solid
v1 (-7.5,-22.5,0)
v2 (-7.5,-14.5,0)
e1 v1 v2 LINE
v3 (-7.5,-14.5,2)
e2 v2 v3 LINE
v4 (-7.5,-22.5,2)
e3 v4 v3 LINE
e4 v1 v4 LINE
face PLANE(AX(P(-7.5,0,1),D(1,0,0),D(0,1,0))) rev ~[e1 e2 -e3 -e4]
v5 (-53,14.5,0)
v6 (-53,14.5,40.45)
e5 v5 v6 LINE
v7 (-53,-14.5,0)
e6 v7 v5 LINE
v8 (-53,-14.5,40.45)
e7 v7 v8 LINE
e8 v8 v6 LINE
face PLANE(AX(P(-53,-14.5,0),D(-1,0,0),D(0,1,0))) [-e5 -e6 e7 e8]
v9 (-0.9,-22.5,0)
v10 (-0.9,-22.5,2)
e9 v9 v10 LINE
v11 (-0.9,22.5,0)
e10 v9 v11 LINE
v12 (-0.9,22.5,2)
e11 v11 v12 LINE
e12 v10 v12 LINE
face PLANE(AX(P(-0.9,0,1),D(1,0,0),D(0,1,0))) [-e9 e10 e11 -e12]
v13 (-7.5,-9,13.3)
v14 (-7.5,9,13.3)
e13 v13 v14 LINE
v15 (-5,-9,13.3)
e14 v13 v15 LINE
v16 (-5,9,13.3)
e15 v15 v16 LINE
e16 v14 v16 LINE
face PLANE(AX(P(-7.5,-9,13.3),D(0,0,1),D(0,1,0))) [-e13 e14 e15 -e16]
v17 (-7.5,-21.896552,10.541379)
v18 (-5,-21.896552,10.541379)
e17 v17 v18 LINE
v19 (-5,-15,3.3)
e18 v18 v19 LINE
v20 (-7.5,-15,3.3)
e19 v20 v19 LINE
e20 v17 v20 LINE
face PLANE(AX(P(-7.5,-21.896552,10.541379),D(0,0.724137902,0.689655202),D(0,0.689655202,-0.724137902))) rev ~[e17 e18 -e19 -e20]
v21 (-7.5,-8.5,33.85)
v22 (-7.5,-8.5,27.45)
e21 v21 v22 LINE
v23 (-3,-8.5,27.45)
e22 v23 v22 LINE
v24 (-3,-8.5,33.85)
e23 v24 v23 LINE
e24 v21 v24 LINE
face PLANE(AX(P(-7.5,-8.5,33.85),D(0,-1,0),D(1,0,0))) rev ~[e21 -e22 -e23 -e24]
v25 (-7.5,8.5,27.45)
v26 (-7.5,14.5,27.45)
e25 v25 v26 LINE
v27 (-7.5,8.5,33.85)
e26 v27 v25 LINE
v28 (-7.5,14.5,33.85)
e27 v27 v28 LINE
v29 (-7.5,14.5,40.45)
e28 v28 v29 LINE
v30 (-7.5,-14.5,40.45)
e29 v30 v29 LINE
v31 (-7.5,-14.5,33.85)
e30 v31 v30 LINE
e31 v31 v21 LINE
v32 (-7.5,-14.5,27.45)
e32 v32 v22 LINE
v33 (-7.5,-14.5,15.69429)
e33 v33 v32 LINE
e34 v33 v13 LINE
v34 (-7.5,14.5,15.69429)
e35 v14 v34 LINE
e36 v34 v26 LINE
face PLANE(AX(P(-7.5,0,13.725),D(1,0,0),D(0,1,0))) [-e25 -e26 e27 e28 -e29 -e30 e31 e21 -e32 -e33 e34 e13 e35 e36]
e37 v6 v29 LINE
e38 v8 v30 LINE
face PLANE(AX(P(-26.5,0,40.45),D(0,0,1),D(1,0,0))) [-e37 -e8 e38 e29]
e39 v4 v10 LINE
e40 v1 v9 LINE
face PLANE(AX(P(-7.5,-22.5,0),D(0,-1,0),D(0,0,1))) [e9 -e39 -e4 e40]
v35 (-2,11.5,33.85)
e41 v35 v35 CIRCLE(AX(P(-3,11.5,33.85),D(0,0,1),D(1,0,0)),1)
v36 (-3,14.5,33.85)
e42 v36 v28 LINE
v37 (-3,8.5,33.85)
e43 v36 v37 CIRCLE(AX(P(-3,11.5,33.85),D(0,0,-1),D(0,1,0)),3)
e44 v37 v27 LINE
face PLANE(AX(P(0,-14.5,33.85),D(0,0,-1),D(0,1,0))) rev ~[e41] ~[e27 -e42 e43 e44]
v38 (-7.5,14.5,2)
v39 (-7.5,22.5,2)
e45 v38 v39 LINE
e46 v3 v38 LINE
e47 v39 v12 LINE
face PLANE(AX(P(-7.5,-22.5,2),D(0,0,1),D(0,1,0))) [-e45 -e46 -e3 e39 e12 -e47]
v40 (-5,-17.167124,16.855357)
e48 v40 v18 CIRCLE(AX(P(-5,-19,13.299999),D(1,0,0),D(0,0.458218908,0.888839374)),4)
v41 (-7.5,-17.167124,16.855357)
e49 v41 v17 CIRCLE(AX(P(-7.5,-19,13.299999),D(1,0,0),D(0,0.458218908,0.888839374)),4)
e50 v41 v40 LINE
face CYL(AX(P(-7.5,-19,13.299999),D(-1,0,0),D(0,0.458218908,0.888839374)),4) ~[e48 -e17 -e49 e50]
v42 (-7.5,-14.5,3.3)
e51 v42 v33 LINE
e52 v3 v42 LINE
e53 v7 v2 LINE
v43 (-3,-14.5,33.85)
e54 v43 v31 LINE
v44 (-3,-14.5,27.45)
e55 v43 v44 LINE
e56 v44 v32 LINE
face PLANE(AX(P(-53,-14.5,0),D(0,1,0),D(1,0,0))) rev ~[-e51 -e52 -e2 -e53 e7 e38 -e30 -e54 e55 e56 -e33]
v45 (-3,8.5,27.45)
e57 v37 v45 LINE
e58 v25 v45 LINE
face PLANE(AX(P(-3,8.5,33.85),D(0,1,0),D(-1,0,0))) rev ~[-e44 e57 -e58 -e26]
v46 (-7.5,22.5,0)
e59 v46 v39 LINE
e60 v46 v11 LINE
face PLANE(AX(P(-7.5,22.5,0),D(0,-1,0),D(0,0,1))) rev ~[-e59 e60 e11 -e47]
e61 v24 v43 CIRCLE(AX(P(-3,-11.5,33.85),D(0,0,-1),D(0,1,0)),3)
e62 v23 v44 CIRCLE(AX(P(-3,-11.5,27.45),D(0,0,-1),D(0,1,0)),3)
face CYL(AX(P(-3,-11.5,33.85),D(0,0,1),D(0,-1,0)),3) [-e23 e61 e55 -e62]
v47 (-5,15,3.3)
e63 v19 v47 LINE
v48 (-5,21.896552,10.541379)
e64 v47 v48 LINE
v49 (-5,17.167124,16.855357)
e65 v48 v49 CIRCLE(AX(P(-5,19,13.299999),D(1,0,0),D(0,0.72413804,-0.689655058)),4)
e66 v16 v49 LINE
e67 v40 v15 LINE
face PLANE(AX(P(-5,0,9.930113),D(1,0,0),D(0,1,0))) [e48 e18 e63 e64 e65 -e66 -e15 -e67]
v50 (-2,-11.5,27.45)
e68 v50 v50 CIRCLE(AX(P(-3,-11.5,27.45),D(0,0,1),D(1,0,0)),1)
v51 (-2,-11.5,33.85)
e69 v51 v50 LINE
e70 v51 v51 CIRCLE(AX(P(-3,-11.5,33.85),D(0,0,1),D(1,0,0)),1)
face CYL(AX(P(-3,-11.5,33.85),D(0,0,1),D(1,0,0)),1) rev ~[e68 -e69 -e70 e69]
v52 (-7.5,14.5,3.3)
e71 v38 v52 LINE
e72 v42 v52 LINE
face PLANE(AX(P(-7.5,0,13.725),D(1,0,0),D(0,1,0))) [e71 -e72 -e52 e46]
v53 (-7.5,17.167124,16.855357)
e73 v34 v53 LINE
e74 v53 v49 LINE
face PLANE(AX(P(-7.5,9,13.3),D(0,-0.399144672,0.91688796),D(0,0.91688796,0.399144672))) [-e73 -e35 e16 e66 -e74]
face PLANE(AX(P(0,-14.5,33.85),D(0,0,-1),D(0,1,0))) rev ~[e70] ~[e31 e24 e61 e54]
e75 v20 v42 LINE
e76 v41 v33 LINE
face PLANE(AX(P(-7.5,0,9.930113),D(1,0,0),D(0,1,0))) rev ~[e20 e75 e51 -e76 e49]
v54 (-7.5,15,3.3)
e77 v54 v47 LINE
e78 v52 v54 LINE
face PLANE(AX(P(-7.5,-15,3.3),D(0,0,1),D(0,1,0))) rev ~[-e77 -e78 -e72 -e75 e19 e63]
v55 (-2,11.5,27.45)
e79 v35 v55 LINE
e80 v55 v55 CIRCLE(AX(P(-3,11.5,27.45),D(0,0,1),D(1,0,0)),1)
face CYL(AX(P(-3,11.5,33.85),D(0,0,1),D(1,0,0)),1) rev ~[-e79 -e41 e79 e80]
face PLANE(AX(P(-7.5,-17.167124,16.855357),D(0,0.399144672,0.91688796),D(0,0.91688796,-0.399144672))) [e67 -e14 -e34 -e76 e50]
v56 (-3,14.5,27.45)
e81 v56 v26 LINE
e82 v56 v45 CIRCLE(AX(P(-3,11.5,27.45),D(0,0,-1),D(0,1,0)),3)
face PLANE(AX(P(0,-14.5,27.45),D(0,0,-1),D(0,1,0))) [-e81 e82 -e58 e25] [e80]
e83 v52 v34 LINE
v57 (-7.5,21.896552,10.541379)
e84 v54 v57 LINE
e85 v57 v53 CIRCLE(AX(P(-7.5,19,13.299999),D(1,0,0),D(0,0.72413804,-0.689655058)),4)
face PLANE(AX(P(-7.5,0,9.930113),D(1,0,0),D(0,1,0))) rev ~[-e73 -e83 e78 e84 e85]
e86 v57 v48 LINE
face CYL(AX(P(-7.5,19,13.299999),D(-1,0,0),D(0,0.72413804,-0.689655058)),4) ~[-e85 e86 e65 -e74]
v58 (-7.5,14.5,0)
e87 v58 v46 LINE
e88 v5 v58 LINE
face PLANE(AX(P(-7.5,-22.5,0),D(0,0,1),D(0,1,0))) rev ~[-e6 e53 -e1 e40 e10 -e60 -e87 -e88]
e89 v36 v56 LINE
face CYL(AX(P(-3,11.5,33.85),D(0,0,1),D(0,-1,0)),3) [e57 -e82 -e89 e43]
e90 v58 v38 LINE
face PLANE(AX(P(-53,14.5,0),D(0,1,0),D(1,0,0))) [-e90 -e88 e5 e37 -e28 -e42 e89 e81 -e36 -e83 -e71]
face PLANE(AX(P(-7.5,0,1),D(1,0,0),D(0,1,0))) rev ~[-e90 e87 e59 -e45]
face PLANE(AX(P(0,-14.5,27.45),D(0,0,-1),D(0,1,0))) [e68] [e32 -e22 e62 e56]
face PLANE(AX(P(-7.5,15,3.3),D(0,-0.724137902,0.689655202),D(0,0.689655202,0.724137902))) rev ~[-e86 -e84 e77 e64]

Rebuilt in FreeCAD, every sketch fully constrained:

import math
import FreeCAD as App
import Part
import Sketcher

V = App.Vector


def add_polygon(sketch, points):
    """Adds a closed chain of lines whose ends are joined by coincident constraints."""
    first, n = sketch.GeometryCount, len(points)
    for a, b in zip(points, points[1:] + points[:1]):
        sketch.addGeometry(Part.LineSegment(App.Vector(*a, 0), App.Vector(*b, 0)), False)
    for i in range(n):
        sketch.addConstraint(Sketcher.Constraint("Coincident", first + i, 2, first + (i + 1) % n, 1))

doc = App.newDocument("Part")
body = doc.addObject("PartDesign::Body", "Body")

sketch1 = body.newObject("Sketcher::SketchObject", "Sketch")
sketch1.AttachmentSupport = (doc.getObject("XY_Plane"), [""])
sketch1.MapMode = "FlatFace"
add_polygon(sketch1, [(-53, 14), (-53, -14), (0, -14), (0, 14)])
sketch1.addConstraint(Sketcher.Constraint("Vertical", 0))
sketch1.addConstraint(Sketcher.Constraint("Horizontal", 1))
sketch1.addConstraint(Sketcher.Constraint("Vertical", 2))
sketch1.addConstraint(Sketcher.Constraint("Horizontal", 3))
sketch1.addConstraint(Sketcher.Constraint("Symmetric", 1, 2, 2, 2, -1, 1))
sketch1.addConstraint(Sketcher.Constraint("DistanceX", 1, 1, 1, 2, 53.0))
sketch1.addConstraint(Sketcher.Constraint("DistanceY", 0, 2, 0, 1, 29.0))
pad1 = body.newObject("PartDesign::Pad", "Pad")
pad1.Profile = sketch1
pad1.Length = 40.45

sketch2 = body.newObject("Sketcher::SketchObject", "Sketch001")
sketch2.AttachmentSupport = (doc.getObject("YZ_Plane"), [""])
sketch2.MapMode = "FlatFace"
add_polygon(sketch2, [(-14, 40), (-14, 34), (14, 34), (14, 40)])
add_polygon(sketch2, [(-14, 27), (-14, 0), (14, 0), (14, 27)])
sketch2.addConstraint(Sketcher.Constraint("Vertical", 0))
sketch2.addConstraint(Sketcher.Constraint("Horizontal", 1))
sketch2.addConstraint(Sketcher.Constraint("Vertical", 2))
sketch2.addConstraint(Sketcher.Constraint("Horizontal", 3))
sketch2.addConstraint(Sketcher.Constraint("Vertical", 4))
sketch2.addConstraint(Sketcher.Constraint("Horizontal", 5))
sketch2.addConstraint(Sketcher.Constraint("Vertical", 6))
sketch2.addConstraint(Sketcher.Constraint("Horizontal", 7))
sketch2.addConstraint(Sketcher.Constraint("Symmetric", 4, 2, 5, 2, -1, 1))
sketch2.addConstraint(Sketcher.Constraint("Vertical", 3, 2, 4, 2))
sketch2.addConstraint(Sketcher.Constraint("Vertical", 2, 2, 5, 2))
sketch2.addConstraint(Sketcher.Constraint("DistanceX", 1, 1, 1, 2, 29.0))
sketch2.addConstraint(Sketcher.Constraint("DistanceY", 0, 2, 0, 1, 6.6))
sketch2.addConstraint(Sketcher.Constraint("DistanceY", 6, 2, 2, 2, 13.0))
sketch2.addConstraint(Sketcher.Constraint("DistanceY", 4, 2, 4, 1, 27.45))
pocket1 = body.newObject("PartDesign::Pocket", "Pocket")
pocket1.Profile = sketch2
pocket1.Length = 7.5

sketch3 = body.newObject("Sketcher::SketchObject", "Sketch002")
sketch3.AttachmentSupport = (doc.getObject("XY_Plane"), [""])
sketch3.MapMode = "FlatFace"
sketch3.AttachmentOffset = App.Placement(V(0, 0, 33.85), App.Rotation())
sketch3.addGeometry(Part.Circle(V(-3, -11.5, 0), V(0, 0, 1), 1), False)
sketch3.addGeometry(Part.Circle(V(-3, 11.5, 0), V(0, 0, 1), 1), False)
sketch3.addGeometry(Part.LineSegment(V(-3, 8.5, 0), V(-7.5, 8.5, 0)), False)
sketch3.addGeometry(Part.LineSegment(V(-7.5, 8.5, 0), V(-7.5, -8.5, 0)), False)
sketch3.addGeometry(Part.LineSegment(V(-7.5, -8.5, 0), V(-3, -8.5, 0)), False)
sketch3.addGeometry(Part.ArcOfCircle(Part.Circle(V(-3, -11.5, 0), V(0, 0, 1), 3), math.radians(-90), math.radians(90)), False)
sketch3.addGeometry(Part.LineSegment(V(-3, -14.5, 0), V(2, -14.5, 0)), False)
sketch3.addGeometry(Part.LineSegment(V(2, -14.5, 0), V(2, 14.5, 0)), False)
sketch3.addGeometry(Part.LineSegment(V(2, 14.5, 0), V(-3, 14.5, 0)), False)
sketch3.addGeometry(Part.ArcOfCircle(Part.Circle(V(-3, 11.5, 0), V(0, 0, 1), 3), math.radians(-90), math.radians(90)), False)
sketch3.addConstraint(Sketcher.Constraint("Coincident", 2, 2, 3, 1))
sketch3.addConstraint(Sketcher.Constraint("Coincident", 3, 2, 4, 1))
sketch3.addConstraint(Sketcher.Constraint("Tangent", 4, 2, 5, 2))
sketch3.addConstraint(Sketcher.Constraint("Tangent", 5, 1, 6, 1))
sketch3.addConstraint(Sketcher.Constraint("Coincident", 6, 2, 7, 1))
sketch3.addConstraint(Sketcher.Constraint("Coincident", 7, 2, 8, 1))
sketch3.addConstraint(Sketcher.Constraint("Tangent", 8, 2, 9, 2))
sketch3.addConstraint(Sketcher.Constraint("Tangent", 9, 1, 2, 1))
sketch3.addConstraint(Sketcher.Constraint("Horizontal", 2))
sketch3.addConstraint(Sketcher.Constraint("Vertical", 3))
sketch3.addConstraint(Sketcher.Constraint("Horizontal", 4))
sketch3.addConstraint(Sketcher.Constraint("Horizontal", 6))
sketch3.addConstraint(Sketcher.Constraint("Vertical", 7))
sketch3.addConstraint(Sketcher.Constraint("Horizontal", 8))
sketch3.addConstraint(Sketcher.Constraint("Coincident", 5, 3, 0, 3))
sketch3.addConstraint(Sketcher.Constraint("Coincident", 9, 3, 1, 3))
sketch3.addConstraint(Sketcher.Constraint("Equal", 0, 1))
sketch3.addConstraint(Sketcher.Constraint("Equal", 5, 9))
sketch3.addConstraint(Sketcher.Constraint("Symmetric", 0, 3, 1, 3, -1))
sketch3.addConstraint(Sketcher.Constraint("Diameter", 0, 2.0))
sketch3.addConstraint(Sketcher.Constraint("Radius", 5, 3.0))
sketch3.addConstraint(Sketcher.Constraint("DistanceX", 6, 1, 6, 2, 5.0))
sketch3.addConstraint(Sketcher.Constraint("DistanceY", 3, 2, 3, 1, 17.0))
sketch3.addConstraint(Sketcher.Constraint("DistanceX", 2, 2, 2, 1, 4.5))
sketch3.addConstraint(Sketcher.Constraint("DistanceX", 0, 3, -1, 1, 3.0))
pocket2 = body.newObject("PartDesign::Pocket", "Pocket001")
pocket2.Profile = sketch3
pocket2.Length = 6.5

sketch4 = body.newObject("Sketcher::SketchObject", "Sketch003")
sketch4.AttachmentSupport = (doc.getObject("YZ_Plane"), [""])
sketch4.MapMode = "FlatFace"
sketch4.AttachmentOffset = App.Placement(V(0, 0, -7.5), App.Rotation())
sketch4.addGeometry(Part.LineSegment(V(-21.9, 10.5, 0), V(-15, 3.3, 0)), False)
sketch4.addGeometry(Part.LineSegment(V(-15, 3.3, 0), V(15, 3.3, 0)), False)
sketch4.addGeometry(Part.LineSegment(V(15, 3.3, 0), V(21.9, 10.5, 0)), False)
sketch4.addGeometry(Part.ArcOfCircle(Part.Circle(V(19, 13.3, 0), V(0, 0, 1), 4), math.radians(-44), math.radians(117)), False)
sketch4.addGeometry(Part.LineSegment(V(17.2, 16.9, 0), V(9, 13.3, 0)), False)
sketch4.addGeometry(Part.LineSegment(V(9, 13.3, 0), V(-9, 13.3, 0)), False)
sketch4.addGeometry(Part.LineSegment(V(-9, 13.3, 0), V(-17.2, 16.9, 0)), False)
sketch4.addGeometry(Part.ArcOfCircle(Part.Circle(V(-19, 13.3, 0), V(0, 0, 1), 4), math.radians(63), math.radians(224)), False)
sketch4.addConstraint(Sketcher.Constraint("Coincident", 0, 2, 1, 1))
sketch4.addConstraint(Sketcher.Constraint("Coincident", 1, 2, 2, 1))
sketch4.addConstraint(Sketcher.Constraint("Tangent", 2, 2, 3, 1))
sketch4.addConstraint(Sketcher.Constraint("Coincident", 3, 2, 4, 1))
sketch4.addConstraint(Sketcher.Constraint("Coincident", 4, 2, 5, 1))
sketch4.addConstraint(Sketcher.Constraint("Coincident", 5, 2, 6, 1))
sketch4.addConstraint(Sketcher.Constraint("Coincident", 6, 2, 7, 1))
sketch4.addConstraint(Sketcher.Constraint("Tangent", 7, 2, 0, 1))
sketch4.addConstraint(Sketcher.Constraint("Horizontal", 1))
sketch4.addConstraint(Sketcher.Constraint("Horizontal", 5))
sketch4.addConstraint(Sketcher.Constraint("Equal", 3, 7))
sketch4.addConstraint(Sketcher.Constraint("Symmetric", 3, 3, 7, 3, -2))
sketch4.addConstraint(Sketcher.Constraint("Horizontal", 7, 3, 4, 2))
sketch4.addConstraint(Sketcher.Constraint("Horizontal", 3, 2, 6, 2))
sketch4.addConstraint(Sketcher.Constraint("Horizontal", 2, 2, 7, 2))
sketch4.addConstraint(Sketcher.Constraint("Equal", 4, 6))
sketch4.addConstraint(Sketcher.Constraint("Radius", 3, 4.0))
sketch4.addConstraint(Sketcher.Constraint("DistanceX", 1, 1, 1, 2, 30.0))
sketch4.addConstraint(Sketcher.Constraint("DistanceX", 5, 2, 5, 1, 18.0))
sketch4.addConstraint(Sketcher.Constraint("Distance", 0, 10.0))
sketch4.addConstraint(Sketcher.Constraint("DistanceX", -1, 1, 3, 3, 19.0))
sketch4.addConstraint(Sketcher.Constraint("DistanceY", -1, 1, 3, 3, 13.299999))
sketch4.addConstraint(Sketcher.Constraint("Distance", 4, 8.907439))
pad2 = body.newObject("PartDesign::Pad", "Pad001")
pad2.Profile = sketch4
pad2.Length = 2.5

sketch5 = body.newObject("Sketcher::SketchObject", "Sketch004")
sketch5.AttachmentSupport = (doc.getObject("YZ_Plane"), [""])
sketch5.MapMode = "FlatFace"
sketch5.AttachmentOffset = App.Placement(V(0, 0, -7.5), App.Rotation())
add_polygon(sketch5, [(-22.5, 2), (-22.5, 0), (22.5, 0), (22.5, 2)])
sketch5.addConstraint(Sketcher.Constraint("Vertical", 0))
sketch5.addConstraint(Sketcher.Constraint("Horizontal", 1))
sketch5.addConstraint(Sketcher.Constraint("Vertical", 2))
sketch5.addConstraint(Sketcher.Constraint("Horizontal", 3))
sketch5.addConstraint(Sketcher.Constraint("Symmetric", 0, 2, 1, 2, -1, 1))
sketch5.addConstraint(Sketcher.Constraint("DistanceX", 1, 1, 1, 2, 45.0))
sketch5.addConstraint(Sketcher.Constraint("DistanceY", 0, 2, 0, 1, 2.0))
pad3 = body.newObject("PartDesign::Pad", "Pad002")
pad3.Profile = sketch5
pad3.Length = 6.6

doc.recompute()
